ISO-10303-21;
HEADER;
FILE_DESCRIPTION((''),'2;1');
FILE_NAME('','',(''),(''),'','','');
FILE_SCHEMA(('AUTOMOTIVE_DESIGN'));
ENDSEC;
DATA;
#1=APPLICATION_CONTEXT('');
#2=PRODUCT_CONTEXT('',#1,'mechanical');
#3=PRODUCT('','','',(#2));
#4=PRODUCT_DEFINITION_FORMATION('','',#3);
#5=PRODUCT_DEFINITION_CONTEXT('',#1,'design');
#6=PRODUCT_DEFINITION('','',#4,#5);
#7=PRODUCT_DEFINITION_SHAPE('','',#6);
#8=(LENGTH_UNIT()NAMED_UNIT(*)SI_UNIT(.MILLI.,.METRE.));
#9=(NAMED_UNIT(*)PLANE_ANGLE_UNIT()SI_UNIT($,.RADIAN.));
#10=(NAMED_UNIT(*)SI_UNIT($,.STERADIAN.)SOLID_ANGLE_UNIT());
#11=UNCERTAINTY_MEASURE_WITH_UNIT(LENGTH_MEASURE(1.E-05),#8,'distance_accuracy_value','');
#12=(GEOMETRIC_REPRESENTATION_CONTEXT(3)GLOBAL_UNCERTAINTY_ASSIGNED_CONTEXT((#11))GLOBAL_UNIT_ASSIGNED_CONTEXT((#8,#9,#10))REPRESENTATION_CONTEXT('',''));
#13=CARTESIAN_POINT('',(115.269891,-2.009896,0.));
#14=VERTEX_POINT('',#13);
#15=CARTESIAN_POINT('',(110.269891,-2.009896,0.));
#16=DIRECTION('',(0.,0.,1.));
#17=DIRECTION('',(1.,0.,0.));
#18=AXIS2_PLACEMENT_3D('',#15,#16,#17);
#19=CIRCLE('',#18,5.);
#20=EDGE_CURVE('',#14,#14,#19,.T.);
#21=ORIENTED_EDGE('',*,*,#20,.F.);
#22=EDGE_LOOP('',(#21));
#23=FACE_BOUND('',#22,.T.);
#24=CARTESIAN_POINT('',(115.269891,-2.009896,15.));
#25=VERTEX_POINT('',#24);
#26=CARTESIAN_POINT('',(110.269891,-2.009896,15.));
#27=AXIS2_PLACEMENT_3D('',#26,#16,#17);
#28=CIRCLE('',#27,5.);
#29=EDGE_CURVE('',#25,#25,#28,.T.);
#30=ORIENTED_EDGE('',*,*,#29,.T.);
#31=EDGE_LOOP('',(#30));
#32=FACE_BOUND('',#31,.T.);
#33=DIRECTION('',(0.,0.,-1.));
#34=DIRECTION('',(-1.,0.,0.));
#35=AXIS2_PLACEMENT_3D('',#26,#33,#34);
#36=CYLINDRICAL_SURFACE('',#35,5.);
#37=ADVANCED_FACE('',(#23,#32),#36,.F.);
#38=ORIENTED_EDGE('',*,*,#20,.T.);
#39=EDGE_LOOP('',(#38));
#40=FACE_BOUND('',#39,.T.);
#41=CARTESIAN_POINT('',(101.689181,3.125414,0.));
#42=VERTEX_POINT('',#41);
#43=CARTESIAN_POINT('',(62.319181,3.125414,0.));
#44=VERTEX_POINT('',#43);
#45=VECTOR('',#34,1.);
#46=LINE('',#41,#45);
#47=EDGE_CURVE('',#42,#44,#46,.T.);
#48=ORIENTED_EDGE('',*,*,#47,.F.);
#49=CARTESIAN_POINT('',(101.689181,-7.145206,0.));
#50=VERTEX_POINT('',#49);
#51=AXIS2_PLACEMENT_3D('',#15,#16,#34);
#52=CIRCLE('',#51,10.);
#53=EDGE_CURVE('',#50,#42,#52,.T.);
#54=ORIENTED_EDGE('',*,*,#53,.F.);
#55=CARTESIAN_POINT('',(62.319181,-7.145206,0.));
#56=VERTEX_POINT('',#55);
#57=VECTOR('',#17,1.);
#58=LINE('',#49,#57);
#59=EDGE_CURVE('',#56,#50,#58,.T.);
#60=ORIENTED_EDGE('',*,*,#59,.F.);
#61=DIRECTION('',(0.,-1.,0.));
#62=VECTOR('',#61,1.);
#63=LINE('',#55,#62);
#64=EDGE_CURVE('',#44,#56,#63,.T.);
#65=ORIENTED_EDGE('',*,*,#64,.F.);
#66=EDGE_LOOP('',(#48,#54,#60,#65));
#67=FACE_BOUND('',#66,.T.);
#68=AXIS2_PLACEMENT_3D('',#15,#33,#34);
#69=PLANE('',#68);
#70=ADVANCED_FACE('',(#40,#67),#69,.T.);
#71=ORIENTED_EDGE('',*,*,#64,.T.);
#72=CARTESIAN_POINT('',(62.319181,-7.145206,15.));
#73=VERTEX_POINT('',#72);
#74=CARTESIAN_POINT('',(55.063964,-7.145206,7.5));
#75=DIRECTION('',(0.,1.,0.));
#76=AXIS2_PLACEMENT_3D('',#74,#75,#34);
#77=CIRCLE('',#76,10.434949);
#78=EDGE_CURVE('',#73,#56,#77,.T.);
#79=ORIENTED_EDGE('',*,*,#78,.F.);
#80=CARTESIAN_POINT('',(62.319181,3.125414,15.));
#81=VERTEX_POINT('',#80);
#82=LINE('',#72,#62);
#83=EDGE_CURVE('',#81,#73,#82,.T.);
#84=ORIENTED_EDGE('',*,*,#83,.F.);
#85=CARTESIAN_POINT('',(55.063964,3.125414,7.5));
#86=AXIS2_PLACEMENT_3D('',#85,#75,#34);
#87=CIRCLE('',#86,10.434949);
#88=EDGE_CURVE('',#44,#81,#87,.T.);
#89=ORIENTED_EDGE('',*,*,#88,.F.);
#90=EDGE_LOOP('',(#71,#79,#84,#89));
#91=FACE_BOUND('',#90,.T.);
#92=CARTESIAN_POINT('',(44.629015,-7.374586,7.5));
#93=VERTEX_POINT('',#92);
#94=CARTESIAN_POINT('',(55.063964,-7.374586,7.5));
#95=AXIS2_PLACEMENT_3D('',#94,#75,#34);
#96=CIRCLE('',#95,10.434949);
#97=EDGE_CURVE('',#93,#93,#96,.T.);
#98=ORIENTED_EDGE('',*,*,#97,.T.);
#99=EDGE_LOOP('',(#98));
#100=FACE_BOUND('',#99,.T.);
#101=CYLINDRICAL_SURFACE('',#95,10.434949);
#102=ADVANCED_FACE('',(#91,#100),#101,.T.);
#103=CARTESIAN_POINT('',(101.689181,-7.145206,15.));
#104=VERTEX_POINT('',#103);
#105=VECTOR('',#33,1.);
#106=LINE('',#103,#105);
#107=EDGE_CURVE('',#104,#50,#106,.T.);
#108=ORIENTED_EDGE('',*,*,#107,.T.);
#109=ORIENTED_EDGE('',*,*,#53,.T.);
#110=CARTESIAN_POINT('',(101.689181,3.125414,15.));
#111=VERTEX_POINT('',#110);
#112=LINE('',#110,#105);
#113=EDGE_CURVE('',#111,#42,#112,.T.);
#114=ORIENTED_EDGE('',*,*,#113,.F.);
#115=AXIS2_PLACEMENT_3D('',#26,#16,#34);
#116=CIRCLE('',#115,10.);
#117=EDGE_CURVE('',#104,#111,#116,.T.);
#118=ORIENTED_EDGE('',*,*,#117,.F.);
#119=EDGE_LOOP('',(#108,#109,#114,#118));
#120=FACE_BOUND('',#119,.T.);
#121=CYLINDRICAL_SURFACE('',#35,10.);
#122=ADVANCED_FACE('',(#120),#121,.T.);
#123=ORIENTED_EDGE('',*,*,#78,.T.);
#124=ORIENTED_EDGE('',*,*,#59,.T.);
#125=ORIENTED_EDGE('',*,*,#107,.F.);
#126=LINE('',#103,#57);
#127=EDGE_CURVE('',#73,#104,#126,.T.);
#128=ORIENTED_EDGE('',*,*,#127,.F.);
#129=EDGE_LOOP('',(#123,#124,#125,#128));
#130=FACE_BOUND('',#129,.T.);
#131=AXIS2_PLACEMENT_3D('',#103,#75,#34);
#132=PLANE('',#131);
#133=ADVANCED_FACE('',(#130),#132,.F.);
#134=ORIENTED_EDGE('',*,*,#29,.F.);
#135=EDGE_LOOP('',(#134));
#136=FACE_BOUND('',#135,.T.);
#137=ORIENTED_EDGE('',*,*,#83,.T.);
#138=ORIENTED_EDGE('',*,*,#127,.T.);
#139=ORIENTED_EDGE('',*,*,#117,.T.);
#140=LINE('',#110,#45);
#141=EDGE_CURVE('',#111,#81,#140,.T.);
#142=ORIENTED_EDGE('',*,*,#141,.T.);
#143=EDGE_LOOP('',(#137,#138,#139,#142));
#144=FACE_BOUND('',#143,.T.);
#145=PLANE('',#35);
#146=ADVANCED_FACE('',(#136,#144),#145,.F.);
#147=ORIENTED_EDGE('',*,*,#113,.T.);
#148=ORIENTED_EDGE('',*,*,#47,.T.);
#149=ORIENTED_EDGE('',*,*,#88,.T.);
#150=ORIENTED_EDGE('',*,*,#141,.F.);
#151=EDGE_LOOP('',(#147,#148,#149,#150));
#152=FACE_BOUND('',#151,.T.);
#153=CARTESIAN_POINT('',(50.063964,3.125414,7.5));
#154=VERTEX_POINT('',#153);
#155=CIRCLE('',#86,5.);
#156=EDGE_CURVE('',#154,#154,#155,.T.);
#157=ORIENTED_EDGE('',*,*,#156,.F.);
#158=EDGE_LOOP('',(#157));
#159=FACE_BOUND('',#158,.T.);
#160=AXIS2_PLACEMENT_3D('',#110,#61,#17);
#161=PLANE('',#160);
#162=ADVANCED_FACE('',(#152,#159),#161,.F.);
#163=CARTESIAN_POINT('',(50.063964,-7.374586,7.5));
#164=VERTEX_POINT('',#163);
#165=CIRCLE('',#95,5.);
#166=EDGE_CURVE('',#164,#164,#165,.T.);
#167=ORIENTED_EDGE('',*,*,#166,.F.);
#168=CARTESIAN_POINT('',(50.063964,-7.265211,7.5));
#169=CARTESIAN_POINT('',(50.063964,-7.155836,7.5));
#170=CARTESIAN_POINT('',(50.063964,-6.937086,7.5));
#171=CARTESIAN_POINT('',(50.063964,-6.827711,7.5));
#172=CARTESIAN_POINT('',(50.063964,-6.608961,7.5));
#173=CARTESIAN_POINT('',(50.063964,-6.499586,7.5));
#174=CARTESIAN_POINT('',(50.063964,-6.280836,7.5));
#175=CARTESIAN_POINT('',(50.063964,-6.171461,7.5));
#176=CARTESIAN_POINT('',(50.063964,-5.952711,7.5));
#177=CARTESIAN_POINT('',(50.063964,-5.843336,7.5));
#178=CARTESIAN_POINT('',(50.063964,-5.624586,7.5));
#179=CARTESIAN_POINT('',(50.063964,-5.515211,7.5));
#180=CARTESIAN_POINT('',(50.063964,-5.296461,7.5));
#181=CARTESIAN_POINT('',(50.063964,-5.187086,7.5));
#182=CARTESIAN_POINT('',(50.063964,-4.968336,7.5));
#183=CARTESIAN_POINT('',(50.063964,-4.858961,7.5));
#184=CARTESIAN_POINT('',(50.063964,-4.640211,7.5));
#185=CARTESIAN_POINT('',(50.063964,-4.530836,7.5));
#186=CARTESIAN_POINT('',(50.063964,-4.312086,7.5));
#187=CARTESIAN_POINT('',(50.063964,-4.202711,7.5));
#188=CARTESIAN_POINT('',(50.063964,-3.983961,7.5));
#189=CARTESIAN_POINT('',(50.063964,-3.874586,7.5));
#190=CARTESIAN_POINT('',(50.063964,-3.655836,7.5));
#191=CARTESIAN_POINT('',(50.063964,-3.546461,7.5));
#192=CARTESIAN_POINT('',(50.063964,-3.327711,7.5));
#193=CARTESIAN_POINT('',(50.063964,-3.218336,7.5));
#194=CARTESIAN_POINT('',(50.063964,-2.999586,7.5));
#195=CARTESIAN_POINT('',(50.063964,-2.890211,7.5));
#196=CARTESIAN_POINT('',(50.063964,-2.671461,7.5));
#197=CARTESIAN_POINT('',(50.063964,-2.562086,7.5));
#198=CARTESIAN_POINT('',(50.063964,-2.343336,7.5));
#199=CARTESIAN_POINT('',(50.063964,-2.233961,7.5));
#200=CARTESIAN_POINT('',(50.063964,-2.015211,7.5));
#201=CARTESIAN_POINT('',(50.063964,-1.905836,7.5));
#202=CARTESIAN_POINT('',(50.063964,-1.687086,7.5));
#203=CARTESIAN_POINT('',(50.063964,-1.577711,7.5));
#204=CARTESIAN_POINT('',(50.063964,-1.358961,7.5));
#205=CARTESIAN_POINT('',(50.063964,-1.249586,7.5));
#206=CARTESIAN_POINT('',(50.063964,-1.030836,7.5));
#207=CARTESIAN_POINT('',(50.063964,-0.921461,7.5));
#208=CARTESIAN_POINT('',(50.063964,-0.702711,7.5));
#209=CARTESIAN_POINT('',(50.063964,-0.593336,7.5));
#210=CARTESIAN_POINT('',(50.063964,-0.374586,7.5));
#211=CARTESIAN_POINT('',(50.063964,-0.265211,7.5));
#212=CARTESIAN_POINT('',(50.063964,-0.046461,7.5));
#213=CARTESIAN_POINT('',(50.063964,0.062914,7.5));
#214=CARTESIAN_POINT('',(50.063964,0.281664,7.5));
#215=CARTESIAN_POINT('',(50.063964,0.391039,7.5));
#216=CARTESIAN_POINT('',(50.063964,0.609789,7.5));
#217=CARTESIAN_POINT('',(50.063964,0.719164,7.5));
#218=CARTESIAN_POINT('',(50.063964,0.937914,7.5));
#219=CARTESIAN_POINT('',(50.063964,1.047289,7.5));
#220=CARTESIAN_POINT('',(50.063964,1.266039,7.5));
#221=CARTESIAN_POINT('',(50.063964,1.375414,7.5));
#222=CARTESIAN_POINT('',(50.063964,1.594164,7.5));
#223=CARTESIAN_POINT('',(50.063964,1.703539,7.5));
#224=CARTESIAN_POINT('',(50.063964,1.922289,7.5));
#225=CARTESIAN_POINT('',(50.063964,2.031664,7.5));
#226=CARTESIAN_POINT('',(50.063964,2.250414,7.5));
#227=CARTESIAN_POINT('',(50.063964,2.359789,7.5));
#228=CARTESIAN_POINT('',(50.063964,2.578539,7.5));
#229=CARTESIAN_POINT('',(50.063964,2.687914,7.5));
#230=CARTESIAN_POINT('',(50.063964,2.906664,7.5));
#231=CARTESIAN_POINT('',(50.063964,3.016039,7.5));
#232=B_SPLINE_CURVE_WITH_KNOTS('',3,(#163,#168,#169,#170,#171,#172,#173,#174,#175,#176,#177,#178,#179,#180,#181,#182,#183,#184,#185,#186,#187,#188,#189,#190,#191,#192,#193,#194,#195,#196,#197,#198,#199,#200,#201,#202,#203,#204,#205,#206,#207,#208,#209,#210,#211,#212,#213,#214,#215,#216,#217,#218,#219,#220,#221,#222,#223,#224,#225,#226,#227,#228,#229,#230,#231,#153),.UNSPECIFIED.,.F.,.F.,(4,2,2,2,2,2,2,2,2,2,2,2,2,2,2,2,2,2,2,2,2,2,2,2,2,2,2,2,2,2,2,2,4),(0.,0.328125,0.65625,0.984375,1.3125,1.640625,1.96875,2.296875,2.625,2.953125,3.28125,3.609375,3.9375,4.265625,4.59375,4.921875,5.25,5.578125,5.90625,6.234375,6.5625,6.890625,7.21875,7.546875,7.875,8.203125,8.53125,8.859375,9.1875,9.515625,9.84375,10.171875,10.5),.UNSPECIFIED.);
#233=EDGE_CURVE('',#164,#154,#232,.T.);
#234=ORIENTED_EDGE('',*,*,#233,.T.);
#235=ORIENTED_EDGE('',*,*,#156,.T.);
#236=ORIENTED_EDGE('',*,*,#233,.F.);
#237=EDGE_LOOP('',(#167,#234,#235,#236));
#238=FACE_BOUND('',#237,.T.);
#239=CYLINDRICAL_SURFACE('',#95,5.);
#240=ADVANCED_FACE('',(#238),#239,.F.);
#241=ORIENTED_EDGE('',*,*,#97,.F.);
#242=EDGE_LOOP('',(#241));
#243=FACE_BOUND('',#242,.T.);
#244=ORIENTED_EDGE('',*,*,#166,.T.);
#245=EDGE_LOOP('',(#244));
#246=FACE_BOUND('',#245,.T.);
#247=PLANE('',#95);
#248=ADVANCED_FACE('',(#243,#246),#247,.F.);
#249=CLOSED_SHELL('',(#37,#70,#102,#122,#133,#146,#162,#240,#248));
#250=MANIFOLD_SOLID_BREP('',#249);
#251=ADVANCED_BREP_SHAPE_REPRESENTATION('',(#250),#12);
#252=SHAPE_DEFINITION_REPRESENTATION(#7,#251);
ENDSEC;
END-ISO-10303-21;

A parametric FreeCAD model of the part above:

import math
import FreeCAD as App
import Part
import Sketcher

doc = App.newDocument("Part")
body = doc.addObject("PartDesign::Body", "Body")

# Sketch on XY plane
sketch1 = body.newObject("Sketcher::SketchObject", "Sketch")
sketch1.AttachmentSupport = (doc.getObject("XY_Plane"), [""])
sketch1.MapMode = "FlatFace"
sketch1.addGeometry([
    Part.LineSegment(App.Vector(62, -7, 0), App.Vector(102, -7, 0)),  # 0
    Part.ArcOfCircle(Part.Circle(App.Vector(110, -2, 0), App.Vector(0, 0, 1), 10), math.radians(-149), math.radians(149)),  # 1
    Part.LineSegment(App.Vector(102, 3, 0), App.Vector(62, 3, 0)),  # 2
    Part.LineSegment(App.Vector(62, 3, 0), App.Vector(62, -7, 0)),  # 3
    Part.Circle(App.Vector(110, -2, 0), App.Vector(0, 0, 1), 5),  # 4
], False)
sketch1.addConstraint([
    Sketcher.Constraint("Coincident", 0, 2, 1, 1),
    Sketcher.Constraint("Coincident", 1, 2, 2, 1),
    Sketcher.Constraint("Coincident", 2, 2, 3, 1),
    Sketcher.Constraint("Coincident", 3, 2, 0, 1),
    Sketcher.Constraint("Horizontal", 0),
    Sketcher.Constraint("Horizontal", 2),
    Sketcher.Constraint("Vertical", 3),
    Sketcher.Constraint("Coincident", 4, 3, 1, 3),
    Sketcher.Constraint("Vertical", 0, 2, 1, 2),
    Sketcher.Constraint("Diameter", 4, 10.0),
    Sketcher.Constraint("Radius", 1, 10.0),
    Sketcher.Constraint("DistanceX", 0, 1, 0, 2, 39.37),
    Sketcher.Constraint("DistanceY", 3, 2, 3, 1, 10.270619),
    Sketcher.Constraint("DistanceX", -1, 1, 1, 3, 110.269891),
    Sketcher.Constraint("DistanceY", 1, 3, -1, 1, 2.009896),
])
pad1 = body.newObject("PartDesign::Pad", "Pad")
pad1.Profile = sketch1
pad1.Length = 15

# Sketch on XZ plane
sketch2 = body.newObject("Sketcher::SketchObject", "Sketch001")
sketch2.AttachmentSupport = (doc.getObject("XZ_Plane"), [""])
sketch2.MapMode = "FlatFace"
sketch2.AttachmentOffset = App.Placement(App.Vector(0, 0, -3.125414), App.Rotation())
sketch2.addGeometry([
    Part.Circle(App.Vector(55, 8, 0), App.Vector(0, 0, 1), 10),
    Part.Circle(App.Vector(55, 8, 0), App.Vector(0, 0, 1), 5),
], False)
sketch2.addConstraint([
    Sketcher.Constraint("Coincident", 1, 3, 0, 3),
    Sketcher.Constraint("Diameter", 1, 10.0),
    Sketcher.Constraint("Diameter", 0, 20.869898),
    Sketcher.Constraint("DistanceY", -1, 1, 0, 3, 7.5),
    Sketcher.Constraint("DistanceX", -1, 1, 0, 3, 55.063964),
])
pad2 = body.newObject("PartDesign::Pad", "Pad001")
pad2.Profile = sketch2
pad2.Length = 10.5

doc.recompute()
